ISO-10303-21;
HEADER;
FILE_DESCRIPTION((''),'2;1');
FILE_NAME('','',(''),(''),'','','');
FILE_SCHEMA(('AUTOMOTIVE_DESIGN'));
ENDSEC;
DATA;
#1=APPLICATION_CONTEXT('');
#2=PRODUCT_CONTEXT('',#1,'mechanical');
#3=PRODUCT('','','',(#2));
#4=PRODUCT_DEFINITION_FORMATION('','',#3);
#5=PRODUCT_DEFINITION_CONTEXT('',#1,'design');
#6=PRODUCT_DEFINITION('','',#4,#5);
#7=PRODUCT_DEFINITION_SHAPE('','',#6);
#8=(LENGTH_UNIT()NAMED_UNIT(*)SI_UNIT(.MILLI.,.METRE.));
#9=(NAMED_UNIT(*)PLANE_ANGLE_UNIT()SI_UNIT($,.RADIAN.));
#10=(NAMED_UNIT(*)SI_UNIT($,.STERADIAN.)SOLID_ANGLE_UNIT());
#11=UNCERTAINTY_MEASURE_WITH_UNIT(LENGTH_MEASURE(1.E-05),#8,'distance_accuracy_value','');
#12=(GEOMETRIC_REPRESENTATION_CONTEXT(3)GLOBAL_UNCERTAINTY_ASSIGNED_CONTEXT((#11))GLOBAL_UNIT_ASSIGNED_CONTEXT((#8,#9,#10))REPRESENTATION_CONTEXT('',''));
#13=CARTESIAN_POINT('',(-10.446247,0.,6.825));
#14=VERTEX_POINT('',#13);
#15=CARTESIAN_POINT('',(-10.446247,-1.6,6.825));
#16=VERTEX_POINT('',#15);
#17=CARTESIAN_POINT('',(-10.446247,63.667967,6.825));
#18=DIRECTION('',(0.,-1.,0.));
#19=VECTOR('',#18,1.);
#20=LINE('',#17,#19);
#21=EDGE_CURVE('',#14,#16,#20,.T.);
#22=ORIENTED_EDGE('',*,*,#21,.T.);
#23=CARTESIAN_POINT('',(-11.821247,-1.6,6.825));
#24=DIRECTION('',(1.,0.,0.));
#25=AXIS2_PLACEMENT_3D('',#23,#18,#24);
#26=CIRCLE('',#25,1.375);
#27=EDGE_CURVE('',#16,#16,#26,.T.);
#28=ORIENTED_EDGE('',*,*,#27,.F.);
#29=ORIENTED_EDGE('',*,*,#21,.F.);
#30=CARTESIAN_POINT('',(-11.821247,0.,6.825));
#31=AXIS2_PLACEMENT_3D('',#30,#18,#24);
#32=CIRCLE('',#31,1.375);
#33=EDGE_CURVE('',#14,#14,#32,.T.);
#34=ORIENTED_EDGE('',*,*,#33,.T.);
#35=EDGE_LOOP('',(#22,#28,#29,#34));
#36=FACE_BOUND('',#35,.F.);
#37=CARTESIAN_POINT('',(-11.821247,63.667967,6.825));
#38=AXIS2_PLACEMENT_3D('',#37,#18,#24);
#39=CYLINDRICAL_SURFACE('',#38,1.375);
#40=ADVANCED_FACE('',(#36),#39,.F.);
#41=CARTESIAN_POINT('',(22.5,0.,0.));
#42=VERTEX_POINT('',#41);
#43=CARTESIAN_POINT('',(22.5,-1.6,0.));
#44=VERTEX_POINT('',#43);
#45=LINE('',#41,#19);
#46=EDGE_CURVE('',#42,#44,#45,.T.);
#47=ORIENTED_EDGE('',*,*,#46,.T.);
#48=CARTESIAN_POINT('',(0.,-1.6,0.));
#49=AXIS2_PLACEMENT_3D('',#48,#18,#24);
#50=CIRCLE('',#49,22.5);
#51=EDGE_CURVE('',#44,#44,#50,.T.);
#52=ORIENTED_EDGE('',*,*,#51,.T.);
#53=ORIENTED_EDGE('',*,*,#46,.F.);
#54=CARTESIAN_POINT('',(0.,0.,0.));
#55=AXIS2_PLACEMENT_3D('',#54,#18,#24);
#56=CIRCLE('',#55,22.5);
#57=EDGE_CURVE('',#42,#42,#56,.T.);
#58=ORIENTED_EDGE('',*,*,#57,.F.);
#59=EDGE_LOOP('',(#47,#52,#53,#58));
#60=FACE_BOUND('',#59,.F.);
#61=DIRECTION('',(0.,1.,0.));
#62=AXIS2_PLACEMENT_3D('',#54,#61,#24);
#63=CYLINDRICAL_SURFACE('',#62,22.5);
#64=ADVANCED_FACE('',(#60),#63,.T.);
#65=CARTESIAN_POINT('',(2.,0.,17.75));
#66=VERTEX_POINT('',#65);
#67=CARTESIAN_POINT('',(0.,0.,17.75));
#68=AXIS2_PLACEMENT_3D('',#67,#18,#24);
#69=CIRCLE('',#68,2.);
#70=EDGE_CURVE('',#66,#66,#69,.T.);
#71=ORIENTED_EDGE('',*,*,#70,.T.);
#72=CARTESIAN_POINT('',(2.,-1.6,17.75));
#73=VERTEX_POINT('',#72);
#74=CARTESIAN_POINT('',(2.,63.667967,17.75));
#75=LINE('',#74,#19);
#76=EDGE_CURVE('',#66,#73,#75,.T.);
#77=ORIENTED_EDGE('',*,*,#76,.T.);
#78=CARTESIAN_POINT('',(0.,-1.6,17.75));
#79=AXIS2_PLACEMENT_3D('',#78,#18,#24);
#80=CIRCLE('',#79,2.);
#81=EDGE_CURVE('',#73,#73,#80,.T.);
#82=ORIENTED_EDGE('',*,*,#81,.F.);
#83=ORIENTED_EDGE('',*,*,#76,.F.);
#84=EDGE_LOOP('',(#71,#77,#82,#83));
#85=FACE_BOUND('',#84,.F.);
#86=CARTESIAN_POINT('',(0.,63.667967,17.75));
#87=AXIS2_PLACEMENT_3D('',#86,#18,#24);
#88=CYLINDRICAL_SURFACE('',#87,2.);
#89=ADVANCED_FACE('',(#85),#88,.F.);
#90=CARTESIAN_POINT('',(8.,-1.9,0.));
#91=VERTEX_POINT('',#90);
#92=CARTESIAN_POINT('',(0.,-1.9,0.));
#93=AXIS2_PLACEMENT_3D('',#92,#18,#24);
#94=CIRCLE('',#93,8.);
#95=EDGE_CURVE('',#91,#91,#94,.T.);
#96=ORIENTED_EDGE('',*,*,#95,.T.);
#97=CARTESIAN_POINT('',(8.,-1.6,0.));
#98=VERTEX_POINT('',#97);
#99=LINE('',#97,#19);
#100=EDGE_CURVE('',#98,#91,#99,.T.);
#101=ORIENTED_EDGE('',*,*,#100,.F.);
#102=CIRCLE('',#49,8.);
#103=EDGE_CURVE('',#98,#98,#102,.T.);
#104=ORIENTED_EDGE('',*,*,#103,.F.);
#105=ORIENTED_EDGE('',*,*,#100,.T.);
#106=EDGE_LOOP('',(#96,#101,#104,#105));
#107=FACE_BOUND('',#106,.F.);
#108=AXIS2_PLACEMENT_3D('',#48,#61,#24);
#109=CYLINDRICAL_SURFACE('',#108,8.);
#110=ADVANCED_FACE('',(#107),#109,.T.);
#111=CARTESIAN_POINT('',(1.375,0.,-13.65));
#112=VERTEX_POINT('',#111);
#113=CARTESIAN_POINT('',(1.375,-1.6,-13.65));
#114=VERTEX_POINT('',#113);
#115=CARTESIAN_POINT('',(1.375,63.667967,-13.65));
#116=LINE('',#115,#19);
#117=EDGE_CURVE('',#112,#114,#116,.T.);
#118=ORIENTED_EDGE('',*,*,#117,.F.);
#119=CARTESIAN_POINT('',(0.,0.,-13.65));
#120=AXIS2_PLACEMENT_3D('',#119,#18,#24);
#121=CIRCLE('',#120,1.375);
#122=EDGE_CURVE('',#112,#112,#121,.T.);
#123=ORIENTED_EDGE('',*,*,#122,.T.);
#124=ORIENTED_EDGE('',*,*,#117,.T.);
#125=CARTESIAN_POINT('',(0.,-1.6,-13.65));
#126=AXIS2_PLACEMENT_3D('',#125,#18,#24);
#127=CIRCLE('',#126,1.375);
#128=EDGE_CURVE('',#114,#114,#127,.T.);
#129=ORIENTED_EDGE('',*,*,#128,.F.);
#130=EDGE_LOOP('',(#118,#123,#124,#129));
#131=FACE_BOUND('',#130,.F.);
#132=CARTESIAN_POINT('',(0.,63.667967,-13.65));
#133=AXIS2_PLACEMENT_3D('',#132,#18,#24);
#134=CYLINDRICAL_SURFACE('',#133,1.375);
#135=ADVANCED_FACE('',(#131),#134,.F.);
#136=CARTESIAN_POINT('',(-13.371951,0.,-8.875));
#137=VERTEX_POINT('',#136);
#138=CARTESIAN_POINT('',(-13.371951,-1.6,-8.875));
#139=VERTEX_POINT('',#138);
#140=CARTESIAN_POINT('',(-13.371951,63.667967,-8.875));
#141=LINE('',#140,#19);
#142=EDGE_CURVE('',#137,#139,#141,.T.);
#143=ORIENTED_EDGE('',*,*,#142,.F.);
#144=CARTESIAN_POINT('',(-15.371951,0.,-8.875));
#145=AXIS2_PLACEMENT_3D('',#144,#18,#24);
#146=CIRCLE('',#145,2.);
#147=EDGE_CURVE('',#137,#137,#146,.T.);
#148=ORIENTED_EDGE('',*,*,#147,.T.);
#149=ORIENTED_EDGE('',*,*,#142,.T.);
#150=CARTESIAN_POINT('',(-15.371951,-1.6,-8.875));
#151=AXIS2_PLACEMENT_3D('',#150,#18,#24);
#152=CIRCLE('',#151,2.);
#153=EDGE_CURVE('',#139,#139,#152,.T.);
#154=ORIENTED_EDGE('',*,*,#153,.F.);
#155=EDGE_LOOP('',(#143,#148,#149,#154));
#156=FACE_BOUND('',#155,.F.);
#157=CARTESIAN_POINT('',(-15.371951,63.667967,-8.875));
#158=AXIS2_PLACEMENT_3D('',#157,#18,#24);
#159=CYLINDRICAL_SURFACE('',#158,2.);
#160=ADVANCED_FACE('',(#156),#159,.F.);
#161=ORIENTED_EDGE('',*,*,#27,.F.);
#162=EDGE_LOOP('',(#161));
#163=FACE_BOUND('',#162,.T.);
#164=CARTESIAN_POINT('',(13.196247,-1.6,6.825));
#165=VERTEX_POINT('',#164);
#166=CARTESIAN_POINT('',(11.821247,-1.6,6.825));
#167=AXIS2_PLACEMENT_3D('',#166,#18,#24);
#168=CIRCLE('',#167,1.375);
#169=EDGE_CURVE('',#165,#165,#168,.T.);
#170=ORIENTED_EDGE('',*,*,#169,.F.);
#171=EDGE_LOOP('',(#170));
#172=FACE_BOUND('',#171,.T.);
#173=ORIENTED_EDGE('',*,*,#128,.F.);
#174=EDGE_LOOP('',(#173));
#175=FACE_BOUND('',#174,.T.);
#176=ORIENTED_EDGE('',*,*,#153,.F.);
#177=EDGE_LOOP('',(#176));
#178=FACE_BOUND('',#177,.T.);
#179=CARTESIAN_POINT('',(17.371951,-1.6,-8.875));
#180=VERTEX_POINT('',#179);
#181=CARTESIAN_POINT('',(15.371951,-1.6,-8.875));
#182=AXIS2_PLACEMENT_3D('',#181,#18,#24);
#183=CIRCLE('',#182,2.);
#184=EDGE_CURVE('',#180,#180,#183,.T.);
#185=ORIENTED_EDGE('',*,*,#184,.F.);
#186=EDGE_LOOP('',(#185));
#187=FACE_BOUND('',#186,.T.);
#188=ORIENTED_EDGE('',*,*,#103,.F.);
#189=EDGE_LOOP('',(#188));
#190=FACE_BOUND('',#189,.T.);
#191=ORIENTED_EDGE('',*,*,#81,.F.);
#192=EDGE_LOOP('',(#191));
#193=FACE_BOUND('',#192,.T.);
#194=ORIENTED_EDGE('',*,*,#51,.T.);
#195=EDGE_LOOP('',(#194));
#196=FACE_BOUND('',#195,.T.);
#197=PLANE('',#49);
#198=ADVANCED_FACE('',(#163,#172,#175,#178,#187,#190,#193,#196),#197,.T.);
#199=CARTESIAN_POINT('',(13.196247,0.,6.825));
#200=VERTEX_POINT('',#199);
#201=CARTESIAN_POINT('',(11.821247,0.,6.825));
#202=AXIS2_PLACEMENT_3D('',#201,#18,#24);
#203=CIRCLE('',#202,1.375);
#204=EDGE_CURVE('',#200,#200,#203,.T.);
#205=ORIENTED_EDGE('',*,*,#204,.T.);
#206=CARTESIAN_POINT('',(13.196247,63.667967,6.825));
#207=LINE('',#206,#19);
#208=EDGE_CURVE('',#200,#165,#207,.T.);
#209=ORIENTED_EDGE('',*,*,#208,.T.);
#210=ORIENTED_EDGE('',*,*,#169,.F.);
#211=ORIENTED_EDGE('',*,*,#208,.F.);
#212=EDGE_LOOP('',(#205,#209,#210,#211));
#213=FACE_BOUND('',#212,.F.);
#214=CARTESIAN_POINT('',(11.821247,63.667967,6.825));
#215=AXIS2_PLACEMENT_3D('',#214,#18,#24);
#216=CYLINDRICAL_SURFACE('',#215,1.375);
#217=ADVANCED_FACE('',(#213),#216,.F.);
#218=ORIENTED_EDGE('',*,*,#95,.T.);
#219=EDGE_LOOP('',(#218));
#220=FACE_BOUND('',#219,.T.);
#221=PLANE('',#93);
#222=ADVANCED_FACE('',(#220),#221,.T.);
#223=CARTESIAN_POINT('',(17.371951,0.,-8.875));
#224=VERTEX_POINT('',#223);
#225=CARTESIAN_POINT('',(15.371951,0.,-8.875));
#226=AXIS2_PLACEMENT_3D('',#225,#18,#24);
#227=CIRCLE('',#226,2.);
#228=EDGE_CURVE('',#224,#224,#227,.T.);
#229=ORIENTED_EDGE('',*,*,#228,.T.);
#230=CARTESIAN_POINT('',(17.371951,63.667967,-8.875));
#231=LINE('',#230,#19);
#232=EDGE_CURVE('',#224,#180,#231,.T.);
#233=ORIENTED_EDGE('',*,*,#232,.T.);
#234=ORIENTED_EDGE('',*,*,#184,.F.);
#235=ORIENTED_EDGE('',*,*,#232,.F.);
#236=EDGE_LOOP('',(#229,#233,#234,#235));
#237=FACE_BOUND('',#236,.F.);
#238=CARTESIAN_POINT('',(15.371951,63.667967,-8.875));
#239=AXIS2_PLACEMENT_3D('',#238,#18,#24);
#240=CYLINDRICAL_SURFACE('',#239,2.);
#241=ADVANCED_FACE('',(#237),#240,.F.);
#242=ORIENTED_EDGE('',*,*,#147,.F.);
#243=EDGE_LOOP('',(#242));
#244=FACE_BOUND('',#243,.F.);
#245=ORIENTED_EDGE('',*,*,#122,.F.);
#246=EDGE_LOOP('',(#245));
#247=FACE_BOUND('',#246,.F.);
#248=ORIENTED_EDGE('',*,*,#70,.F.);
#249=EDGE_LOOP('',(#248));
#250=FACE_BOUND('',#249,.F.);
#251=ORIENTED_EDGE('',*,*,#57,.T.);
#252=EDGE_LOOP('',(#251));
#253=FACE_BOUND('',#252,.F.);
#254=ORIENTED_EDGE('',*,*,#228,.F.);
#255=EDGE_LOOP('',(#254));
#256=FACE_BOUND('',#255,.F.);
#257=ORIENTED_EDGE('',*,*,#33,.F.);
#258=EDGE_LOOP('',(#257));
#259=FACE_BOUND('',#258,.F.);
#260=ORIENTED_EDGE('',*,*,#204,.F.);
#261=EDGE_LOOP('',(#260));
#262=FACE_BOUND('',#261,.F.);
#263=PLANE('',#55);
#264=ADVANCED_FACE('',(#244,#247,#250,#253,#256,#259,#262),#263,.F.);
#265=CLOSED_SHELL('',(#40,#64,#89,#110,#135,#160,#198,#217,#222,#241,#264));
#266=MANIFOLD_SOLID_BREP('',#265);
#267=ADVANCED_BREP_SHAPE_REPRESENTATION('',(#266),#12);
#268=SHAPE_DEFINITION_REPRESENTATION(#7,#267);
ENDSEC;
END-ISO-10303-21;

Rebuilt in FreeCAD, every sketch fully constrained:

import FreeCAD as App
import Part
import Sketcher
from FreeCAD import Vector

doc = App.newDocument("Part")
params = doc.addObject("Spreadsheet::Sheet", "Params")
for row, (alias, value) in enumerate([
    ("sketch1_diameter", "45 mm"),
    ("pad1_length", "1.6 mm"),
    ("sketch2_diameter", "16 mm"),
    ("pad2_length", "0.3 mm"),
    ("sketch3_diameter", "4 mm"),
    ("hole_diameter", "4 mm"),
    ("sketch4_diameter", "2.75 mm"),
    ("hole2_diameter", "2.75 mm"),
], start=1):
    params.set(f"A{row}", alias)
    params.set(f"B{row}", "=" + value)
    params.setAlias(f"B{row}", alias)

body = doc.addObject("PartDesign::Body", "Body")

sketch1 = body.newObject("Sketcher::SketchObject", "Sketch")
sketch1.AttachmentSupport = (doc.getObject("XZ_Plane"), [""])
sketch1.MapMode = "FlatFace"
sketch1.addGeometry(Part.Circle(Vector(0, 0, 0), Vector(0, 0, 1), 22.5), False)
sketch1.addConstraint([
    Sketcher.Constraint("Coincident", 0, 3, -1, 1),
    Sketcher.Constraint("Diameter", 0, 45.0),
])
sketch1.setExpression("Constraints[1]", "Params.sketch1_diameter")
pad1 = body.newObject("PartDesign::Pad", "Pad")
pad1.Profile = sketch1
pad1.setExpression("Length", "Params.pad1_length")

sketch2 = body.newObject("Sketcher::SketchObject", "Sketch001")
sketch2.AttachmentSupport = (doc.getObject("XZ_Plane"), [""])
sketch2.MapMode = "FlatFace"
sketch2.AttachmentOffset = App.Placement(Vector(0, 0, 1.6), App.Rotation())
sketch2.addGeometry(Part.Circle(Vector(0, 0, 0), Vector(0, 0, 1), 8), False)
sketch2.addConstraint([
    Sketcher.Constraint("Coincident", 0, 3, -1, 1),
    Sketcher.Constraint("Diameter", 0, 16.0),
])
sketch2.setExpression("Constraints[1]", "Params.sketch2_diameter")
pad2 = body.newObject("PartDesign::Pad", "Pad001")
pad2.Profile = sketch2
pad2.setExpression("Length", "Params.pad2_length")

sketch3 = body.newObject("Sketcher::SketchObject", "Sketch002")
sketch3.AttachmentSupport = (doc.getObject("XZ_Plane"), [""])
sketch3.MapMode = "FlatFace"
sketch3.addGeometry([
    Part.Circle(Vector(0, 17.75, 0), Vector(0, 0, 1), 2),
    Part.Circle(Vector(15.371951, -8.875, 0), Vector(0, 0, 1), 2),
    Part.Circle(Vector(-15.371951, -8.875, 0), Vector(0, 0, 1), 2),
], False)
sketch3.addConstraint([
    Sketcher.Constraint("Equal", 0, 1),
    Sketcher.Constraint("Equal", 1, 2),
    Sketcher.Constraint("Symmetric", 1, 3, 2, 3, -2),
    Sketcher.Constraint("PointOnObject", 0, 3, -2),
    Sketcher.Constraint("Diameter", 0, 4.0),
    Sketcher.Constraint("DistanceY", -1, 1, 0, 3, 17.75),
    Sketcher.Constraint("DistanceY", 1, 3, -1, 1, 8.875),
    Sketcher.Constraint("DistanceX", 2, 3, 1, 3, 30.743902),
])
sketch3.setExpression("Constraints[4]", "Params.sketch3_diameter")
doc.recompute()
hole = body.newObject("PartDesign::Hole", "Hole")
hole.Profile = sketch3
hole.ThreadType = "None"
hole.setExpression("Diameter", "Params.hole_diameter")
hole.DepthType = "ThroughAll"
hole.Reversed = True

sketch4 = body.newObject("Sketcher::SketchObject", "Sketch003")
sketch4.AttachmentSupport = (doc.getObject("XZ_Plane"), [""])
sketch4.MapMode = "FlatFace"
sketch4.addGeometry([
    Part.Circle(Vector(-11.821247, 6.825, 0), Vector(0, 0, 1), 1.375),
    Part.Circle(Vector(0, -13.65, 0), Vector(0, 0, 1), 1.375),
    Part.Circle(Vector(11.821247, 6.825, 0), Vector(0, 0, 1), 1.375),
], False)
sketch4.addConstraint([
    Sketcher.Constraint("Equal", 0, 1),
    Sketcher.Constraint("Equal", 1, 2),
    Sketcher.Constraint("Symmetric", 0, 3, 2, 3, -2),
    Sketcher.Constraint("PointOnObject", 1, 3, -2),
    Sketcher.Constraint("Diameter", 0, 2.75),
    Sketcher.Constraint("DistanceY", 1, 3, -1, 1, 13.65),
    Sketcher.Constraint("DistanceY", -1, 1, 0, 3, 6.825),
    Sketcher.Constraint("DistanceX", 0, 3, -1, 1, 11.821247),
])
sketch4.setExpression("Constraints[4]", "Params.sketch4_diameter")
doc.recompute()
hole2 = body.newObject("PartDesign::Hole", "Hole001")
hole2.Profile = sketch4
hole2.ThreadType = "None"
hole2.setExpression("Diameter", "Params.hole2_diameter")
hole2.DepthType = "ThroughAll"
hole2.Reversed = True

doc.recompute()
